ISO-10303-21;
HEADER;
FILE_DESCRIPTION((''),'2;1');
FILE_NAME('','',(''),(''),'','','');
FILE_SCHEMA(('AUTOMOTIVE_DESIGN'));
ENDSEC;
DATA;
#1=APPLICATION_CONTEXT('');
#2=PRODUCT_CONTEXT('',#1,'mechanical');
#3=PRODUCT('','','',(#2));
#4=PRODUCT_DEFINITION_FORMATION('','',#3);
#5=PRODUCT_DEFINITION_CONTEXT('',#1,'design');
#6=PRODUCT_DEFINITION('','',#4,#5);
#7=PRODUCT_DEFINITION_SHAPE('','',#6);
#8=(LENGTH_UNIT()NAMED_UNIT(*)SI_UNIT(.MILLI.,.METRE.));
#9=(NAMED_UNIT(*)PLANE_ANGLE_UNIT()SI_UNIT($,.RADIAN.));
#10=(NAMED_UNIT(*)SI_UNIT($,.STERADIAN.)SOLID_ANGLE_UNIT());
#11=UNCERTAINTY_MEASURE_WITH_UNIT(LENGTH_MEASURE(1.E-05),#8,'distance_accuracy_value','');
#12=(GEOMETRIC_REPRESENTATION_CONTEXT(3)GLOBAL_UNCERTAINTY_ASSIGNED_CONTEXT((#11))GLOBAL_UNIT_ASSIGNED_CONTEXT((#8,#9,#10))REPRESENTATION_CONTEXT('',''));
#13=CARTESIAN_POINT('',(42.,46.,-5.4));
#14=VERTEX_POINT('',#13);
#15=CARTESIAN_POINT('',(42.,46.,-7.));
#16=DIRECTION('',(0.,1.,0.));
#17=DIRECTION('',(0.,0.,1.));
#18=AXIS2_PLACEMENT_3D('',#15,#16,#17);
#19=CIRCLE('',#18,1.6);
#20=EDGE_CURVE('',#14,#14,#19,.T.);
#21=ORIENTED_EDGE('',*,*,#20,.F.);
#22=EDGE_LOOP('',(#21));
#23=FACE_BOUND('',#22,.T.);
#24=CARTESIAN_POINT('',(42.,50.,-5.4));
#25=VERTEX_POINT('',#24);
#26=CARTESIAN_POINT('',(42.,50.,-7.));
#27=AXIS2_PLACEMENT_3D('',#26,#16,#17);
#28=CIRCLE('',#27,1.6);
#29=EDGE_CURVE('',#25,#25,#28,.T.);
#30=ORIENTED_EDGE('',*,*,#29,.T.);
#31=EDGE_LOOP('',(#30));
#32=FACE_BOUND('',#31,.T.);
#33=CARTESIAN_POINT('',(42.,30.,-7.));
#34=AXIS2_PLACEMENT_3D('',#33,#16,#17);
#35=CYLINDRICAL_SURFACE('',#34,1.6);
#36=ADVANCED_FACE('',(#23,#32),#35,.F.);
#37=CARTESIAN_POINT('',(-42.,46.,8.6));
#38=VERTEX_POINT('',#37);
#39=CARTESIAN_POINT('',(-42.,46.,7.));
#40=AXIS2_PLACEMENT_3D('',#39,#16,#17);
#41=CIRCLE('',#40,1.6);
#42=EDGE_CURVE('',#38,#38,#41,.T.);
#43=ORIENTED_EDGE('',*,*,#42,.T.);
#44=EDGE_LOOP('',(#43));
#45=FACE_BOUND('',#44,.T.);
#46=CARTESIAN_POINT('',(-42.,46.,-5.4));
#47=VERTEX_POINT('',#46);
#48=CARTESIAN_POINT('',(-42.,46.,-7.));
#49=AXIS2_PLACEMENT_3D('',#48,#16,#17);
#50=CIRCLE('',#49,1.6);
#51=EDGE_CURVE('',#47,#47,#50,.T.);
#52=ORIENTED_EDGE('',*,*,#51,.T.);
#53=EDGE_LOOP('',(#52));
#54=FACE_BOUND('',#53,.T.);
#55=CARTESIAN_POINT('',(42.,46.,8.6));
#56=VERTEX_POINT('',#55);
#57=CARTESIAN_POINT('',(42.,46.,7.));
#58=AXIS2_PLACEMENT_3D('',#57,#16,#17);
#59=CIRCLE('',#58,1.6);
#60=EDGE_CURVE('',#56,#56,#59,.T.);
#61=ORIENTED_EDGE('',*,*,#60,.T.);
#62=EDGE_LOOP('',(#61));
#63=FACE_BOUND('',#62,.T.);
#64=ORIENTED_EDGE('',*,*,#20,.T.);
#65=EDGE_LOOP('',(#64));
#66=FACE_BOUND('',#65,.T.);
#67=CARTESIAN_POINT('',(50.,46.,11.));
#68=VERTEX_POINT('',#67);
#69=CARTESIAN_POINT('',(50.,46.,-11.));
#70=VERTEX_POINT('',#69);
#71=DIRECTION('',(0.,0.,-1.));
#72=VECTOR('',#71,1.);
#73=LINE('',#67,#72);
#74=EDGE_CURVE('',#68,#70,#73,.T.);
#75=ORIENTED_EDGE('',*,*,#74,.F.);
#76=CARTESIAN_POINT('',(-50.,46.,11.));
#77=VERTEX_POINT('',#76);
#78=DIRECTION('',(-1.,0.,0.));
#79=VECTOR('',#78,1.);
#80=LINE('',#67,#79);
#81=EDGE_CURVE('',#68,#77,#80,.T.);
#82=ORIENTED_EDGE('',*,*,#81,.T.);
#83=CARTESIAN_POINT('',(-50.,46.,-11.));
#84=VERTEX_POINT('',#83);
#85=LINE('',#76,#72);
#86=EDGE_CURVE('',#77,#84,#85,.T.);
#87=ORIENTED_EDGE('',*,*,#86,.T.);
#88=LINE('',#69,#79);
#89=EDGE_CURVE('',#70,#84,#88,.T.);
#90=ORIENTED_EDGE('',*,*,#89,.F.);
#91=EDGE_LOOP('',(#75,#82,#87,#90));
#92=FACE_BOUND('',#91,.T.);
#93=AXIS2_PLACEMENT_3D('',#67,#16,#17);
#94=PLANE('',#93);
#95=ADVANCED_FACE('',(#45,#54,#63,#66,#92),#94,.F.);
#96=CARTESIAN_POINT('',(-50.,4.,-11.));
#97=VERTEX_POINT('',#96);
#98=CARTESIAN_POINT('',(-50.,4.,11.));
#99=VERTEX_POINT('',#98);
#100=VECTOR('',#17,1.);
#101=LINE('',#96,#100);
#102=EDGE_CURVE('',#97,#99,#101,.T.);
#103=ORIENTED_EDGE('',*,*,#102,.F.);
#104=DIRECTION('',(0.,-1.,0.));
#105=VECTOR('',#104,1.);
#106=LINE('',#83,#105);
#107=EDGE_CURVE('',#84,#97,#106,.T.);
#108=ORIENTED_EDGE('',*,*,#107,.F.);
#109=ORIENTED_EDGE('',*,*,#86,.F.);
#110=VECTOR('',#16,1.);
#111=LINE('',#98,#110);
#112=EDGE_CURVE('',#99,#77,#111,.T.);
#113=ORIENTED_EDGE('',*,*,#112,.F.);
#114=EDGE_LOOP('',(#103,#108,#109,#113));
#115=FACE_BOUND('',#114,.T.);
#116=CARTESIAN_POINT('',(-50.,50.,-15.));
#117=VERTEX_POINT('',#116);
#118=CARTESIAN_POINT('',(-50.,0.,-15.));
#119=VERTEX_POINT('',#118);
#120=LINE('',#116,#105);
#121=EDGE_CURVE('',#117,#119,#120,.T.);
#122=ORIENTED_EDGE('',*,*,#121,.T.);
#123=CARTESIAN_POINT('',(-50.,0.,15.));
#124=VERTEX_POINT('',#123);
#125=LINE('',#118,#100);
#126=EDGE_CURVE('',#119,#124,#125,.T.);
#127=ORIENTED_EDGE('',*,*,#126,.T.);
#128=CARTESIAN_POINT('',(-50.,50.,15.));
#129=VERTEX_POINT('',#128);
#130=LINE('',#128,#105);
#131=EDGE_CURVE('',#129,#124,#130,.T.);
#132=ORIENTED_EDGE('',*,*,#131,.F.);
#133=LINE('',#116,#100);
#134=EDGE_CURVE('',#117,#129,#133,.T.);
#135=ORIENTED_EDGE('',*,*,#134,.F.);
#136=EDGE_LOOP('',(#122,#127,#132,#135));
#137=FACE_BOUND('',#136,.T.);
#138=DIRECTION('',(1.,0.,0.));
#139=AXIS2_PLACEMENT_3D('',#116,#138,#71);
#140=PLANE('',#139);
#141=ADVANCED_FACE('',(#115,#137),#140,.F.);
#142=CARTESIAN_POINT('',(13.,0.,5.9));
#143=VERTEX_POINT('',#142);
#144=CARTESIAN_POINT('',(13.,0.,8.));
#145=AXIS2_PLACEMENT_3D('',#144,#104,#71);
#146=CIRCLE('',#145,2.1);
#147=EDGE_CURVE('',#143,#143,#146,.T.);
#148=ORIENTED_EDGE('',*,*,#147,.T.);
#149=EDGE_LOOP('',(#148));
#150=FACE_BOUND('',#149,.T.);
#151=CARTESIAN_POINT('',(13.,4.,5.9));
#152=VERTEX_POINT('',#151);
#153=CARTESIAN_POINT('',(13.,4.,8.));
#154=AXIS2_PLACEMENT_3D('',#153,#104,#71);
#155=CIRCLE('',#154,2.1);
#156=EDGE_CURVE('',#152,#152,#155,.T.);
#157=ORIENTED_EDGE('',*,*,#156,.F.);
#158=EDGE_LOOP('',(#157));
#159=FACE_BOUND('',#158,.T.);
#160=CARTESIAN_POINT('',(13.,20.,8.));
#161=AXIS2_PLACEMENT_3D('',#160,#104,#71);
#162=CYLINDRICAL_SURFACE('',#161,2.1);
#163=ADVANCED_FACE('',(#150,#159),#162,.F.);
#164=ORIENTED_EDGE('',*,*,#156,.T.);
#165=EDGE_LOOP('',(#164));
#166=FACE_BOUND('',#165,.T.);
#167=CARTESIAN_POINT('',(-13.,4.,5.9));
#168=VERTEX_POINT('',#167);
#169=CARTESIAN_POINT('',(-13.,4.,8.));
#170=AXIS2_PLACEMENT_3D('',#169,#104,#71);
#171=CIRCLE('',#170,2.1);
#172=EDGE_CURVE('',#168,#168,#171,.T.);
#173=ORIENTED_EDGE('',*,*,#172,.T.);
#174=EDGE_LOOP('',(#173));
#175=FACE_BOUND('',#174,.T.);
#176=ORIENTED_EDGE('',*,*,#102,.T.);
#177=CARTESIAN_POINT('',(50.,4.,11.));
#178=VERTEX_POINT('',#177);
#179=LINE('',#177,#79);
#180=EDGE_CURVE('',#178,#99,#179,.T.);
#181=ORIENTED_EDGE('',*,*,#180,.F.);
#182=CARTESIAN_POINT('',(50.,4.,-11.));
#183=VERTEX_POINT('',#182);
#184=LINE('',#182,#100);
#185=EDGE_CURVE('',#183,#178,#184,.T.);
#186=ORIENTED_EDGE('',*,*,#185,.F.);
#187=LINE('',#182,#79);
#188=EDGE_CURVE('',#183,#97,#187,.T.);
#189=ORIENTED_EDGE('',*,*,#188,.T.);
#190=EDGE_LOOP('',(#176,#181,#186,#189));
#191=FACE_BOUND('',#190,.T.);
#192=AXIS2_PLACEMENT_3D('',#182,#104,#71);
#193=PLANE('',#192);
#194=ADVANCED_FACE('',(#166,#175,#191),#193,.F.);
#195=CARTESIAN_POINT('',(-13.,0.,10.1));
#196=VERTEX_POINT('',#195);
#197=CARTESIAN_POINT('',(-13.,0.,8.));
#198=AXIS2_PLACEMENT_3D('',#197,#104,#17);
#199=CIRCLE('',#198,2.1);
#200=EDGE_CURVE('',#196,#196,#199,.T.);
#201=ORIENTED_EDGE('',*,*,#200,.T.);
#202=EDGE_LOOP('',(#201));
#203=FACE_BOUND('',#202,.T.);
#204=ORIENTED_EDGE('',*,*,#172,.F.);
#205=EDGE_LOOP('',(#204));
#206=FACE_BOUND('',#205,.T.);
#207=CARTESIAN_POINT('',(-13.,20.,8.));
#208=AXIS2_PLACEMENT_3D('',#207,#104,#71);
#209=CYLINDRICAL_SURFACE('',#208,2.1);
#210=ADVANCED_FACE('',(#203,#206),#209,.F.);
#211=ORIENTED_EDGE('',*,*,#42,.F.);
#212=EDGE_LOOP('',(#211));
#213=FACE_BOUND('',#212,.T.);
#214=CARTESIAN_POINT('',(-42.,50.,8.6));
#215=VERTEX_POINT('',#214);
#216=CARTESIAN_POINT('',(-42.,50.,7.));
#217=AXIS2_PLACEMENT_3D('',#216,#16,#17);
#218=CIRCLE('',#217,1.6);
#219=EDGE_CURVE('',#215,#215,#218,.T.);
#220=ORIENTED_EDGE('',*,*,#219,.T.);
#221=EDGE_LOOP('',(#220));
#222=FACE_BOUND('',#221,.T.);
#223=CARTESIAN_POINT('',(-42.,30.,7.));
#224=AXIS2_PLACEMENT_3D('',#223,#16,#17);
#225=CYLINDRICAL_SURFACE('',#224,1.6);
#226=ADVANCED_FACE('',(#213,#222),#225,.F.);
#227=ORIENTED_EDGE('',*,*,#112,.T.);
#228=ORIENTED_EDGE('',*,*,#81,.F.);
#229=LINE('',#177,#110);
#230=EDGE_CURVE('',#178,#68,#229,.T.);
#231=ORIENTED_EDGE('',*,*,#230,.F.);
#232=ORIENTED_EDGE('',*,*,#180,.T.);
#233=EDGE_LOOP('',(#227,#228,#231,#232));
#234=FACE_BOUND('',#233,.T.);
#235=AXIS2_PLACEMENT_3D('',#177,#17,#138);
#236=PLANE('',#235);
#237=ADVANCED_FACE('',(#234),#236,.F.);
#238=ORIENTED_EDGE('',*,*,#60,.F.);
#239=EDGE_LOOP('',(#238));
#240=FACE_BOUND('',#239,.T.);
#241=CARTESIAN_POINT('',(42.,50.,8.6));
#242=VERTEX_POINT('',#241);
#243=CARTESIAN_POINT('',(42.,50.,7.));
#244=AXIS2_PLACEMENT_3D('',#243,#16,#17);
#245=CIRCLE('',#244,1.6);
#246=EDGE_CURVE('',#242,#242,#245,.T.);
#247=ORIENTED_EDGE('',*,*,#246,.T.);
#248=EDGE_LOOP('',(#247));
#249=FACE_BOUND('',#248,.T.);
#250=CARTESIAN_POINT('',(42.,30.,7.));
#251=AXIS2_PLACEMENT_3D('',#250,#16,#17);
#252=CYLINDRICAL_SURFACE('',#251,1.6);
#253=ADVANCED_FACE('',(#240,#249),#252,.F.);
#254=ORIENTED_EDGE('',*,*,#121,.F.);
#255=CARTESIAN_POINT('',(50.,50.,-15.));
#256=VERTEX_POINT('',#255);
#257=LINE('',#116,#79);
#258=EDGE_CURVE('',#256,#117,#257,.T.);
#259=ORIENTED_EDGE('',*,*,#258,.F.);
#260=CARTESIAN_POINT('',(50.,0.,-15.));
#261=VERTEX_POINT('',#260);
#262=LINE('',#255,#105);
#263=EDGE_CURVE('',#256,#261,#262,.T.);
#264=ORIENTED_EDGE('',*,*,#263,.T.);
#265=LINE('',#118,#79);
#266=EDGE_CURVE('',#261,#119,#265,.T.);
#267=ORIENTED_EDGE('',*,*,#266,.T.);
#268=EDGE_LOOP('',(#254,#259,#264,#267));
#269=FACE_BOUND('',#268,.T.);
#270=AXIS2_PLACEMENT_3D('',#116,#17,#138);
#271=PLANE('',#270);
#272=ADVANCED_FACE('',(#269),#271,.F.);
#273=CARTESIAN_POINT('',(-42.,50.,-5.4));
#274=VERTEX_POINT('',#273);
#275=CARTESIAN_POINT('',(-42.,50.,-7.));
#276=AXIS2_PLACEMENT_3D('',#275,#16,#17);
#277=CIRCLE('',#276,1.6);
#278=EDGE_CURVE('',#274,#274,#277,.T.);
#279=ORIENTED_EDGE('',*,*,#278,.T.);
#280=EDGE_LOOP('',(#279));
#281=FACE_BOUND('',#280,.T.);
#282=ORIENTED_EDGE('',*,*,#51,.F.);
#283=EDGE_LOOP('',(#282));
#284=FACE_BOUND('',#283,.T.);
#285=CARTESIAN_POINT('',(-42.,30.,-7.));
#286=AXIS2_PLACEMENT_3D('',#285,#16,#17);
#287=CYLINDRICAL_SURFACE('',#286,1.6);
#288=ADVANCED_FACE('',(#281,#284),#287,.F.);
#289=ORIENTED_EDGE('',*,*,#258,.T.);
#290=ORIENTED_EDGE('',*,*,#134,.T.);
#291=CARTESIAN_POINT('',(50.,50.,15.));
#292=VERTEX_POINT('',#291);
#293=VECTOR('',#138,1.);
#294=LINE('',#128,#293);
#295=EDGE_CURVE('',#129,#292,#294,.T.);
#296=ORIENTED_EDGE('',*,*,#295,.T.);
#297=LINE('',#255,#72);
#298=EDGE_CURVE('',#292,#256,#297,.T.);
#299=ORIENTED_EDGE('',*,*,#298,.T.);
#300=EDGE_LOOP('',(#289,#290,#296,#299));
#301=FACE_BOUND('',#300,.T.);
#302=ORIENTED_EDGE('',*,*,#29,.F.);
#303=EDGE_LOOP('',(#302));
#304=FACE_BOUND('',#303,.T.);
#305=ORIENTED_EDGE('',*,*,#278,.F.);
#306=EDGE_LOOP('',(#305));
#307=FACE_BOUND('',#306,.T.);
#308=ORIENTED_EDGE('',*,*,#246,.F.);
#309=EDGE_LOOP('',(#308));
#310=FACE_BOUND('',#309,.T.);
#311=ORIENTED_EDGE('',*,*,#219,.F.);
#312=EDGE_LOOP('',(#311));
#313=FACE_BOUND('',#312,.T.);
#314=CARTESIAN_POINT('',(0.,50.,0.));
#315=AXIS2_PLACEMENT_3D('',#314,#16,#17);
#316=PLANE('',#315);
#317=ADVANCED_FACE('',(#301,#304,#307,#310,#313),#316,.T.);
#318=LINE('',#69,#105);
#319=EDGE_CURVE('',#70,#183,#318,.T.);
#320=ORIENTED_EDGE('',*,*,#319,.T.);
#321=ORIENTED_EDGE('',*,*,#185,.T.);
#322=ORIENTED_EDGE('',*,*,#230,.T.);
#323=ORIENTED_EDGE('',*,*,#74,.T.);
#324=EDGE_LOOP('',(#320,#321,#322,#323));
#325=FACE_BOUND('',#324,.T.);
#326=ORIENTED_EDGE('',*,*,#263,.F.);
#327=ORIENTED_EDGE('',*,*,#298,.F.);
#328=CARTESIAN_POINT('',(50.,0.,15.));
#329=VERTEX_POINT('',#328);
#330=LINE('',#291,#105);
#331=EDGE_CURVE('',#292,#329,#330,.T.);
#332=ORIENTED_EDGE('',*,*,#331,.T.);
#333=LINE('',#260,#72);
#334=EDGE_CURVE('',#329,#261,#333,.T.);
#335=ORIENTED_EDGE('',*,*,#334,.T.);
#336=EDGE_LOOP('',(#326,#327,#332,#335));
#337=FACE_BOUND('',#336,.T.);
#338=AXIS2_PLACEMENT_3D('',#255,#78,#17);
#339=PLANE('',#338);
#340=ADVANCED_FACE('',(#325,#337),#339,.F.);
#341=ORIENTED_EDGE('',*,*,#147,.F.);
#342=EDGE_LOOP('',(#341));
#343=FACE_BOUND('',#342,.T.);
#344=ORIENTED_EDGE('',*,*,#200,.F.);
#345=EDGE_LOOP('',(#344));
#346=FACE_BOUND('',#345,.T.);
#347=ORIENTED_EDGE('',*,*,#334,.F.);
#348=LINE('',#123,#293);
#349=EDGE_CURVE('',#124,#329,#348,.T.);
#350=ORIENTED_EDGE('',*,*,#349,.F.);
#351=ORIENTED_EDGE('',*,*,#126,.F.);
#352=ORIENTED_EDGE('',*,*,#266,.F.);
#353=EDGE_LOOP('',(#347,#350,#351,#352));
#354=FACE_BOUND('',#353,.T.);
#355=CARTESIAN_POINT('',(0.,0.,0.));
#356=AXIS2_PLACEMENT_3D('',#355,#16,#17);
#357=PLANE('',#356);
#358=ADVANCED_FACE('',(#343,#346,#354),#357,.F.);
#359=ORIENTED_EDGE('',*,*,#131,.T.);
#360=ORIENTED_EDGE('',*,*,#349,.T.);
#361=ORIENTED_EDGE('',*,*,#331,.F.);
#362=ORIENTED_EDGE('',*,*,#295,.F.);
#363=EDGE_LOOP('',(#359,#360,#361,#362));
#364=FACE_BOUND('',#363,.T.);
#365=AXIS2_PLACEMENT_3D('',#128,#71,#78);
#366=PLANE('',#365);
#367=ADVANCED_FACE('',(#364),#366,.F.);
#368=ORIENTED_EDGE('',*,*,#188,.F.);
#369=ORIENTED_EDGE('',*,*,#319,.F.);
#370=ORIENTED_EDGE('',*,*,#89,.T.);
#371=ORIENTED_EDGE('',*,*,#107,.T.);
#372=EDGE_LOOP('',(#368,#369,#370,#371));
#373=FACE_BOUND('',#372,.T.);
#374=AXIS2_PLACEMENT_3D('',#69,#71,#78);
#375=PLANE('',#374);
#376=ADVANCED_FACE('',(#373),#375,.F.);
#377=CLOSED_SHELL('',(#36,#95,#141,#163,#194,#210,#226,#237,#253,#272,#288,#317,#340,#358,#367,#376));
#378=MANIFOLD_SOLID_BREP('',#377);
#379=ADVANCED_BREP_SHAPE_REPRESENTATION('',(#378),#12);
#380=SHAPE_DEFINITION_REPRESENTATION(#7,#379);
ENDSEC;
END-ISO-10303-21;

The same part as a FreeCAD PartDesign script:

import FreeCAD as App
import Part
import Sketcher

V = App.Vector
Q = App.Units.Quantity


def add_polygon(sketch, points):
    """Adds a closed chain of lines whose ends are joined by coincident constraints."""
    first, n = sketch.GeometryCount, len(points)
    for a, b in zip(points, points[1:] + points[:1]):
        sketch.addGeometry(Part.LineSegment(App.Vector(*a, 0), App.Vector(*b, 0)), False)
    for i in range(n):
        sketch.addConstraint(Sketcher.Constraint("Coincident", first + i, 2, first + (i + 1) % n, 1))

doc = App.newDocument("Part")
body = doc.addObject("PartDesign::Body", "Body")

# Sketch on XZ plane
sketch1 = body.newObject("Sketcher::SketchObject", "Sketch")
sketch1.AttachmentSupport = (doc.getObject("XZ_Plane"), [""])
sketch1.MapMode = "FlatFace"
add_polygon(sketch1, [(-50, -15), (-50, 15), (50, 15), (50, -15)])  # lines 0-3
sketch1.addConstraint(Sketcher.Constraint("Vertical", 0))
sketch1.addConstraint(Sketcher.Constraint("Horizontal", 1))
sketch1.addConstraint(Sketcher.Constraint("Vertical", 2))
sketch1.addConstraint(Sketcher.Constraint("Horizontal", 3))
sketch1.addConstraint(Sketcher.Constraint("Symmetric", 0, 2, 2, 2, -1, 1))
sketch1.addConstraint(Sketcher.Constraint("DistanceX", 1, 1, 1, 2, Q("100 mm")))
sketch1.addConstraint(Sketcher.Constraint("DistanceY", 0, 1, 0, 2, Q("30 mm")))
pad1 = body.newObject("PartDesign::Pad", "Pad")
pad1.Profile = sketch1
pad1.Length = 50
pad1.Reversed = True

# Sketch on YZ plane
sketch2 = body.newObject("Sketcher::SketchObject", "Sketch001")
sketch2.AttachmentSupport = (doc.getObject("YZ_Plane"), [""])
sketch2.MapMode = "FlatFace"
sketch2.AttachmentOffset = App.Placement(V(0, 0, -50), App.Rotation())
add_polygon(sketch2, [(46, -11), (4, -11), (4, 11), (46, 11)])  # lines 0-3
sketch2.addConstraint(Sketcher.Constraint("Horizontal", 0))
sketch2.addConstraint(Sketcher.Constraint("Vertical", 1))
sketch2.addConstraint(Sketcher.Constraint("Horizontal", 2))
sketch2.addConstraint(Sketcher.Constraint("Vertical", 3))
sketch2.addConstraint(Sketcher.Constraint("DistanceX", 0, 2, 0, 1, Q("42 mm")))
sketch2.addConstraint(Sketcher.Constraint("DistanceY", 1, 1, 1, 2, Q("22 mm")))
sketch2.addConstraint(Sketcher.Constraint("DistanceX", -1, 1, 0, 2, Q("4 mm")))
sketch2.addConstraint(Sketcher.Constraint("DistanceY", 0, 2, -1, 1, Q("11 mm")))
pocket1 = body.newObject("PartDesign::Pocket", "Pocket")
pocket1.Profile = sketch2
pocket1.Type = "ThroughAll"
pocket1.Reversed = True

# Sketch on XZ plane
sketch3 = body.newObject("Sketcher::SketchObject", "Sketch002")
sketch3.AttachmentSupport = (doc.getObject("XZ_Plane"), [""])
sketch3.MapMode = "FlatFace"
sketch3.addGeometry(Part.Circle(V(13, 8, 0), V(0, 0, 1), 2.1), False)
sketch3.addGeometry(Part.Circle(V(-13, 8, 0), V(0, 0, 1), 2.1), False)
sketch3.addConstraint(Sketcher.Constraint("Equal", 0, 1))
sketch3.addConstraint(Sketcher.Constraint("Symmetric", 0, 3, 1, 3, -2))
sketch3.addConstraint(Sketcher.Constraint("Diameter", 0, Q("4.2 mm")))
sketch3.addConstraint(Sketcher.Constraint("DistanceX", -1, 1, 0, 3, Q("13 mm")))
sketch3.addConstraint(Sketcher.Constraint("DistanceY", -1, 1, 0, 3, Q("8 mm")))
pocket2 = body.newObject("PartDesign::Pocket", "Pocket001")
pocket2.Profile = sketch3
pocket2.Length = 20

# Sketch on XZ plane
sketch4 = body.newObject("Sketcher::SketchObject", "Sketch003")
sketch4.AttachmentSupport = (doc.getObject("XZ_Plane"), [""])
sketch4.MapMode = "FlatFace"
sketch4.AttachmentOffset = App.Placement(V(0, 0, -50), App.Rotation())
sketch4.addGeometry(Part.Circle(V(-42, -7, 0), V(0, 0, 1), 1.6), False)
sketch4.addGeometry(Part.Circle(V(-42, 7, 0), V(0, 0, 1), 1.6), False)
sketch4.addGeometry(Part.Circle(V(42, -7, 0), V(0, 0, 1), 1.6), False)
sketch4.addGeometry(Part.Circle(V(42, 7, 0), V(0, 0, 1), 1.6), False)
sketch4.addConstraint(Sketcher.Constraint("Equal", 0, 1))
sketch4.addConstraint(Sketcher.Constraint("Equal", 1, 2))
sketch4.addConstraint(Sketcher.Constraint("Equal", 2, 3))
sketch4.addConstraint(Sketcher.Constraint("Symmetric", 1, 3, 2, 3, -1, 1))
sketch4.addConstraint(Sketcher.Constraint("Symmetric", 0, 3, 3, 3, -1, 1))
sketch4.addConstraint(Sketcher.Constraint("Symmetric", 0, 3, 2, 3, -2))
sketch4.addConstraint(Sketcher.Constraint("Diameter", 0, Q("3.2 mm")))
sketch4.addConstraint(Sketcher.Constraint("DistanceX", 0, 3, -1, 1, Q("42 mm")))
sketch4.addConstraint(Sketcher.Constraint("DistanceY", 0, 3, -1, 1, Q("7 mm")))
pocket3 = body.newObject("PartDesign::Pocket", "Pocket002")
pocket3.Profile = sketch4
pocket3.Length = 20
pocket3.Reversed = True

doc.recompute()
